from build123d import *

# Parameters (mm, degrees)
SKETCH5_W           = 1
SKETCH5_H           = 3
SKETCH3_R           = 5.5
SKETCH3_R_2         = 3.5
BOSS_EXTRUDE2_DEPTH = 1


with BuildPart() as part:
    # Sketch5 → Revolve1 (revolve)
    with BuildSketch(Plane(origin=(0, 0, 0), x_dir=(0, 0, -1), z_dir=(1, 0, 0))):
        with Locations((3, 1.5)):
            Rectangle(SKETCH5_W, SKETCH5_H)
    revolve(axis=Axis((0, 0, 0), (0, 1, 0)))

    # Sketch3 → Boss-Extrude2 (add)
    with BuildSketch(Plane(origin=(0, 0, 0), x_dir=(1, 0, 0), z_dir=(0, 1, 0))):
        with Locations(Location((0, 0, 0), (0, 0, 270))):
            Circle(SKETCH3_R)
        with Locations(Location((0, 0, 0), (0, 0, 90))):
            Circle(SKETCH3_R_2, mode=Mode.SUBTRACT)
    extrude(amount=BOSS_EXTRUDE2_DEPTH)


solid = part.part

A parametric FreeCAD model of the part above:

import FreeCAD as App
import Part
import Sketcher
from FreeCAD import Vector

doc = App.newDocument("Part")
body = doc.addObject("PartDesign::Body", "Body")

# Sketch on YZ plane
sketch1 = body.newObject("Sketcher::SketchObject", "Sketch")
sketch1.AttachmentSupport = (doc.getObject("YZ_Plane"), [""])
sketch1.MapMode = "FlatFace"
sketch1.addGeometry([
    Part.LineSegment(Vector(3, -2.5, 0), Vector(0, -2.5, 0)),
    Part.LineSegment(Vector(0, -2.5, 0), Vector(0, -3.5, 0)),
    Part.LineSegment(Vector(0, -3.5, 0), Vector(3, -3.5, 0)),
    Part.LineSegment(Vector(3, -3.5, 0), Vector(3, -2.5, 0)),
], False)
sketch1.addConstraint([
    Sketcher.Constraint("Coincident", 0, 2, 1, 1),
    Sketcher.Constraint("Coincident", 1, 2, 2, 1),
    Sketcher.Constraint("Coincident", 2, 2, 3, 1),
    Sketcher.Constraint("Coincident", 3, 2, 0, 1),
    Sketcher.Constraint("Horizontal", 0),
    Sketcher.Constraint("Vertical", 1),
    Sketcher.Constraint("Horizontal", 2),
    Sketcher.Constraint("Vertical", 3),
    Sketcher.Constraint("PointOnObject", 0, 2, -2),
    Sketcher.Constraint("DistanceX", 0, 2, 0, 1, 3.0),
    Sketcher.Constraint("DistanceY", 1, 2, 1, 1, 1.0),
    Sketcher.Constraint("DistanceY", 0, 2, -1, 1, 2.5),
])
revolution = body.newObject("PartDesign::Revolution", "Revolution")
revolution.Profile = sketch1
revolution.ReferenceAxis = (sketch1, ["H_Axis"])
revolution.Angle = 360

# Sketch on XZ plane
sketch2 = body.newObject("Sketcher::SketchObject", "Sketch001")
sketch2.AttachmentSupport = (doc.getObject("XZ_Plane"), [""])
sketch2.MapMode = "FlatFace"
sketch2.addGeometry([
    Part.Circle(Vector(0, 0, 0), Vector(0, 0, 1), 5.5),
    Part.Circle(Vector(0, 0, 0), Vector(0, 0, 1), 3.5),
], False)
sketch2.addConstraint([
    Sketcher.Constraint("Coincident", 0, 3, -1, 1),
    Sketcher.Constraint("Coincident", 1, 3, -1, 1),
    Sketcher.Constraint("Diameter", 0, 11.0),
    Sketcher.Constraint("Diameter", 1, 7.0),
])
pad1 = body.newObject("PartDesign::Pad", "Pad")
pad1.Profile = sketch2
pad1.Length = 1
pad1.Reversed = True

doc.recompute()
